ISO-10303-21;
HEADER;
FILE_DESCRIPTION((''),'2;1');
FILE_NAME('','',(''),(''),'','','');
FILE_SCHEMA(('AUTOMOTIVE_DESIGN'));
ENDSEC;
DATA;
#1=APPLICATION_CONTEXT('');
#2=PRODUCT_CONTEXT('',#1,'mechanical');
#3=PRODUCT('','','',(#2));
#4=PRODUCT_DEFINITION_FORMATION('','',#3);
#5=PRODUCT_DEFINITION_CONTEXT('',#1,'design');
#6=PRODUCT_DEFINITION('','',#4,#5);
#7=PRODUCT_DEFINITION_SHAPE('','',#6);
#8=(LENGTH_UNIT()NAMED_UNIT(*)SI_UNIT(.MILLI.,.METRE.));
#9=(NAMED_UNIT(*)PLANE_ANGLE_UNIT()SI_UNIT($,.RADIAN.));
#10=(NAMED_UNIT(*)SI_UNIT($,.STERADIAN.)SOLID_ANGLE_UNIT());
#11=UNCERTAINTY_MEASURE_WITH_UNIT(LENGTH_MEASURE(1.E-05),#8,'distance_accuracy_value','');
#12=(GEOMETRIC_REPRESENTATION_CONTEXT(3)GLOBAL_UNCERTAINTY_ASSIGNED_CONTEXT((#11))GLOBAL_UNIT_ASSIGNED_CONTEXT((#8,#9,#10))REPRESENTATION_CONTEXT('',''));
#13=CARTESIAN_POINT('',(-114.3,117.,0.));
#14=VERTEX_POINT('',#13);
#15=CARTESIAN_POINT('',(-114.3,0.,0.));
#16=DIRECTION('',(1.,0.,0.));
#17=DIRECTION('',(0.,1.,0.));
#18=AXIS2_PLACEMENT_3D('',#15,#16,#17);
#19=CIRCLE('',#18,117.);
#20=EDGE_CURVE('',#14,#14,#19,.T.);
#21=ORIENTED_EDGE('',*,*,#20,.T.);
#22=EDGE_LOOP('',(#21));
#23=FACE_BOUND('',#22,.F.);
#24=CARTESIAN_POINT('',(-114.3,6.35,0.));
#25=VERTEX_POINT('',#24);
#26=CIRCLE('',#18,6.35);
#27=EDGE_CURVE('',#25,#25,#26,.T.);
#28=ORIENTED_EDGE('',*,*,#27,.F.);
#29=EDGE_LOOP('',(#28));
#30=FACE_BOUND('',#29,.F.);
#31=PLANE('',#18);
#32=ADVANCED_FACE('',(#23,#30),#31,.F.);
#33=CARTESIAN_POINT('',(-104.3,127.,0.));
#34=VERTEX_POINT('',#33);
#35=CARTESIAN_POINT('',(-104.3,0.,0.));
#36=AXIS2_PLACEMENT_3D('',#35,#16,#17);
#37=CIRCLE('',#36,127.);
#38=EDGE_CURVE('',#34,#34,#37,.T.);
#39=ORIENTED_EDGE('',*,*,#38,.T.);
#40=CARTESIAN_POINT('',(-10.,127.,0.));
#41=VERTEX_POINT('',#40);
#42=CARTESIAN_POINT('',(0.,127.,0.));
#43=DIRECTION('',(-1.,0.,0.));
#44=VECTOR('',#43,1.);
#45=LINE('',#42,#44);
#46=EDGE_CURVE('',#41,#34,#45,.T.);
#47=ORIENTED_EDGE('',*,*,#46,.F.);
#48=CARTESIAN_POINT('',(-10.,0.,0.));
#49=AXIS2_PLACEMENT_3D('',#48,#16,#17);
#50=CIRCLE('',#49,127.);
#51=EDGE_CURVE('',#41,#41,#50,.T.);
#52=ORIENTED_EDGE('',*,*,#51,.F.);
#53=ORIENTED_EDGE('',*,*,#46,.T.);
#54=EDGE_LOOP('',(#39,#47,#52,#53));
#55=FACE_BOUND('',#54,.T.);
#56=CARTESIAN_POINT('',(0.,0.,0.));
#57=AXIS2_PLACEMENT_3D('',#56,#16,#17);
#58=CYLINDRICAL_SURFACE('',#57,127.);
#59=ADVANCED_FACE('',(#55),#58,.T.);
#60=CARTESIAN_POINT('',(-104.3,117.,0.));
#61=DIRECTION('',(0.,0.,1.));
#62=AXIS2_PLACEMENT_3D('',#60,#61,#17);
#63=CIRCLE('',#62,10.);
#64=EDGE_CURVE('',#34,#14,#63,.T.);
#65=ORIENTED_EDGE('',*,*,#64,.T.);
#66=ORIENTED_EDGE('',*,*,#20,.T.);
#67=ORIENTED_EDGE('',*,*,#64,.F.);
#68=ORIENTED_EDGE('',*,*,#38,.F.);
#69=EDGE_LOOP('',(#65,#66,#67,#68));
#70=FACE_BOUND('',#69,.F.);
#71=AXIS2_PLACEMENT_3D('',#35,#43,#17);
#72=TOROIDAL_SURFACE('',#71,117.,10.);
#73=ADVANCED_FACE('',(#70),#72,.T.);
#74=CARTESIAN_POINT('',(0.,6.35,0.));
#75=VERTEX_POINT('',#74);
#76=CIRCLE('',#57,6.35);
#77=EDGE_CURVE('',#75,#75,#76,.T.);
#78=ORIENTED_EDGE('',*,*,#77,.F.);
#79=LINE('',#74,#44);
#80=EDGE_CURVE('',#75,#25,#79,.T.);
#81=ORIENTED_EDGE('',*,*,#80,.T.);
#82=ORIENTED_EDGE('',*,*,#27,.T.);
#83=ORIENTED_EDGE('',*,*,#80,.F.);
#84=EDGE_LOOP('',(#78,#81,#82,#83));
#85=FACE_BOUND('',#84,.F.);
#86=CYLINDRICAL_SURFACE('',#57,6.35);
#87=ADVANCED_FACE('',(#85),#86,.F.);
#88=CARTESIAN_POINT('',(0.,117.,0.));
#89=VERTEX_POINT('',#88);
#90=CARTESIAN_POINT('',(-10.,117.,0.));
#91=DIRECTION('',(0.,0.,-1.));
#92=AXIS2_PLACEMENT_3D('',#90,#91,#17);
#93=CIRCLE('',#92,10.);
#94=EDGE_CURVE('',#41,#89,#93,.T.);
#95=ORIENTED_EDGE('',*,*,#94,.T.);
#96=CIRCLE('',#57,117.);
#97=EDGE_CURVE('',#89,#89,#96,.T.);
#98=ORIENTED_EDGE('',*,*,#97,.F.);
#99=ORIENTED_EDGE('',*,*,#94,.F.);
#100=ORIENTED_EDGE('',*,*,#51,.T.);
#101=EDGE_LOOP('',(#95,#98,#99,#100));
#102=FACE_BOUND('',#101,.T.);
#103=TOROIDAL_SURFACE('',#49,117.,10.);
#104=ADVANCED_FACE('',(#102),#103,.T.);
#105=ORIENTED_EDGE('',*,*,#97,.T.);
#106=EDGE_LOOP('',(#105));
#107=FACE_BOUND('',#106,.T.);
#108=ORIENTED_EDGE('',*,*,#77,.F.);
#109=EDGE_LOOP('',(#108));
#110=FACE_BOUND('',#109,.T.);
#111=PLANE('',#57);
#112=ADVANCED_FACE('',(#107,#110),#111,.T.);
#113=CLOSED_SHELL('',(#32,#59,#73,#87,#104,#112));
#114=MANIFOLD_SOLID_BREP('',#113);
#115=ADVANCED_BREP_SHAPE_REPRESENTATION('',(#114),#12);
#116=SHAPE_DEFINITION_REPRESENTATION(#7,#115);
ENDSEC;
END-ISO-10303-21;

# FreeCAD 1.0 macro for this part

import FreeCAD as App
import Part
import Sketcher
from FreeCAD import Vector
Q = App.Units.Quantity


def edges_at(feature, points):
    """Names of the edges that pass closest to the given points."""
    edges = feature.Shape.Edges
    near = lambda p: min(range(len(edges)), key=lambda i: edges[i].distToShape(Part.Vertex(*p))[0])
    return sorted({f"Edge{near(p) + 1}" for p in points})

doc = App.newDocument("Part")
body = doc.addObject("PartDesign::Body", "Body")

# Sketch on YZ plane
sketch1 = body.newObject("Sketcher::SketchObject", "Sketch")
sketch1.AttachmentSupport = (doc.getObject("YZ_Plane"), [""])
sketch1.MapMode = "FlatFace"
sketch1.addGeometry(Part.Circle(Vector(0, 0, 0), Vector(0, 0, 1), 127), False)
sketch1.addConstraint([
    Sketcher.Constraint("Coincident", 0, 3, -1, 1),
    Sketcher.Constraint("Diameter", 0, Q("10 in")),
])
pad1 = body.newObject("PartDesign::Pad", "Pad")
pad1.Profile = sketch1
pad1.Length = Q("4.5 in")
pad1.Reversed = True
doc.recompute()

fillet = body.newObject("PartDesign::Fillet", "Fillet")
fillet.Base = (pad1, edges_at(pad1, [(0, -127, 0), (-114.3, -127, 0)]))
fillet.Radius = 10

# Sketch on YZ plane
sketch2 = body.newObject("Sketcher::SketchObject", "Sketch001")
sketch2.AttachmentSupport = (doc.getObject("YZ_Plane"), [""])
sketch2.MapMode = "FlatFace"
sketch2.addGeometry(Part.Circle(Vector(0, 0, 0), Vector(0, 0, 1), 6.35), False)
sketch2.addConstraint([
    Sketcher.Constraint("Coincident", 0, 3, -1, 1),
    Sketcher.Constraint("Diameter", 0, Q("0.5 in")),
])
pocket1 = body.newObject("PartDesign::Pocket", "Pocket")
pocket1.Profile = sketch2
pocket1.Type = "ThroughAll"

doc.recompute()
